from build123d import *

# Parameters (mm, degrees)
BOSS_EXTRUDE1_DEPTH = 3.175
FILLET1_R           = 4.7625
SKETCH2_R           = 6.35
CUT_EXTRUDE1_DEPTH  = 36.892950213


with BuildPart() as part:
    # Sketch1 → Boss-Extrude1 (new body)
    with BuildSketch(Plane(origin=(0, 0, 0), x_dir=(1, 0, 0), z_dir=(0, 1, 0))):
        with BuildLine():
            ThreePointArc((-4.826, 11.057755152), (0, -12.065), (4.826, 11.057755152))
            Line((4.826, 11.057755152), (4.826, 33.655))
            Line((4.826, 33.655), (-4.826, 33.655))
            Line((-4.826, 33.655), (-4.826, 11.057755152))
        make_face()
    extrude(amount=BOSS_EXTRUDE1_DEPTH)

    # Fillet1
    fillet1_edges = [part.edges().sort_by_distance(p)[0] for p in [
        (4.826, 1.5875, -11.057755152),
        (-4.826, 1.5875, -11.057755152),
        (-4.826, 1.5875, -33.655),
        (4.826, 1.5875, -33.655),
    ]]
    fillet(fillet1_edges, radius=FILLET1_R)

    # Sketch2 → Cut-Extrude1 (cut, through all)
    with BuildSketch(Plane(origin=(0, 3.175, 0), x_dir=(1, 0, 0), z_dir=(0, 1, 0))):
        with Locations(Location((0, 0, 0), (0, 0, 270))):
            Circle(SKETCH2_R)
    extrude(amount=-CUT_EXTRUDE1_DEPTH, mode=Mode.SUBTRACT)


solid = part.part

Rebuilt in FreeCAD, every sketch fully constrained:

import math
import FreeCAD as App
import Part
import Sketcher
Q = App.Units.Quantity


def edges_at(feature, points):
    """Names of the edges that pass closest to the given points."""
    edges = feature.Shape.Edges
    near = lambda p: min(range(len(edges)), key=lambda i: edges[i].distToShape(Part.Vertex(*p))[0])
    return sorted({f"Edge{near(p) + 1}" for p in points})

doc = App.newDocument("Part")
body = doc.addObject("PartDesign::Body", "Body")

# Sketch on XZ plane
sketch1 = body.newObject("Sketcher::SketchObject", "Sketch")
sketch1.AttachmentSupport = (doc.getObject("XZ_Plane"), [""])
sketch1.MapMode = "FlatFace"
sketch1.addGeometry([
    Part.ArcOfCircle(Part.Circle(App.Vector(0, 0, 0), App.Vector(0, 0, 1), 12), math.radians(-66), math.radians(246)),
    Part.LineSegment(App.Vector(5, -11, 0), App.Vector(5, -34, 0)),
    Part.LineSegment(App.Vector(5, -34, 0), App.Vector(-5, -34, 0)),
    Part.LineSegment(App.Vector(-5, -34, 0), App.Vector(-5, -11, 0)),
], False)
sketch1.addConstraint([
    Sketcher.Constraint("Coincident", 0, 1, 1, 1),
    Sketcher.Constraint("Coincident", 1, 2, 2, 1),
    Sketcher.Constraint("Coincident", 2, 2, 3, 1),
    Sketcher.Constraint("Coincident", 3, 2, 0, 2),
    Sketcher.Constraint("Vertical", 1),
    Sketcher.Constraint("Horizontal", 2),
    Sketcher.Constraint("Vertical", 3),
    Sketcher.Constraint("Coincident", 0, 3, -1, 1),
    Sketcher.Constraint("Horizontal", 0, 1, 3, 2),
    Sketcher.Constraint("Radius", 0, Q("0.475 in")),
    Sketcher.Constraint("DistanceX", 2, 2, 2, 1, Q("0.38 in")),
    Sketcher.Constraint("DistanceY", 1, 2, -1, 1, Q("1.325 in")),
])
pad1 = body.newObject("PartDesign::Pad", "Pad")
pad1.Profile = sketch1
pad1.Length = Q("0.125 in")
pad1.Reversed = True
doc.recompute()

fillet = body.newObject("PartDesign::Fillet", "Fillet")
fillet.Base = (pad1, edges_at(pad1, [
    (4.826, 1.587, -11.058),
    (-4.826, 1.587, -11.058),
    (-4.826, 1.587, -33.655),
    (4.826, 1.587, -33.655),
]))
fillet.Radius = Q("0.1875 in")

# Sketch on XZ plane
sketch2 = body.newObject("Sketcher::SketchObject", "Sketch001")
sketch2.AttachmentSupport = (doc.getObject("XZ_Plane"), [""])
sketch2.MapMode = "FlatFace"
sketch2.AttachmentOffset = App.Placement(App.Vector(0, 0, -0.125 * 25.4), App.Rotation())
sketch2.addGeometry(Part.Circle(App.Vector(0, 0, 0), App.Vector(0, 0, 1), 6), False)
sketch2.addConstraint([
    Sketcher.Constraint("Coincident", 0, 3, -1, 1),
    Sketcher.Constraint("Diameter", 0, Q("0.5 in")),
])
pocket1 = body.newObject("PartDesign::Pocket", "Pocket")
pocket1.Profile = sketch2
pocket1.Type = "ThroughAll"
pocket1.Reversed = True

doc.recompute()
